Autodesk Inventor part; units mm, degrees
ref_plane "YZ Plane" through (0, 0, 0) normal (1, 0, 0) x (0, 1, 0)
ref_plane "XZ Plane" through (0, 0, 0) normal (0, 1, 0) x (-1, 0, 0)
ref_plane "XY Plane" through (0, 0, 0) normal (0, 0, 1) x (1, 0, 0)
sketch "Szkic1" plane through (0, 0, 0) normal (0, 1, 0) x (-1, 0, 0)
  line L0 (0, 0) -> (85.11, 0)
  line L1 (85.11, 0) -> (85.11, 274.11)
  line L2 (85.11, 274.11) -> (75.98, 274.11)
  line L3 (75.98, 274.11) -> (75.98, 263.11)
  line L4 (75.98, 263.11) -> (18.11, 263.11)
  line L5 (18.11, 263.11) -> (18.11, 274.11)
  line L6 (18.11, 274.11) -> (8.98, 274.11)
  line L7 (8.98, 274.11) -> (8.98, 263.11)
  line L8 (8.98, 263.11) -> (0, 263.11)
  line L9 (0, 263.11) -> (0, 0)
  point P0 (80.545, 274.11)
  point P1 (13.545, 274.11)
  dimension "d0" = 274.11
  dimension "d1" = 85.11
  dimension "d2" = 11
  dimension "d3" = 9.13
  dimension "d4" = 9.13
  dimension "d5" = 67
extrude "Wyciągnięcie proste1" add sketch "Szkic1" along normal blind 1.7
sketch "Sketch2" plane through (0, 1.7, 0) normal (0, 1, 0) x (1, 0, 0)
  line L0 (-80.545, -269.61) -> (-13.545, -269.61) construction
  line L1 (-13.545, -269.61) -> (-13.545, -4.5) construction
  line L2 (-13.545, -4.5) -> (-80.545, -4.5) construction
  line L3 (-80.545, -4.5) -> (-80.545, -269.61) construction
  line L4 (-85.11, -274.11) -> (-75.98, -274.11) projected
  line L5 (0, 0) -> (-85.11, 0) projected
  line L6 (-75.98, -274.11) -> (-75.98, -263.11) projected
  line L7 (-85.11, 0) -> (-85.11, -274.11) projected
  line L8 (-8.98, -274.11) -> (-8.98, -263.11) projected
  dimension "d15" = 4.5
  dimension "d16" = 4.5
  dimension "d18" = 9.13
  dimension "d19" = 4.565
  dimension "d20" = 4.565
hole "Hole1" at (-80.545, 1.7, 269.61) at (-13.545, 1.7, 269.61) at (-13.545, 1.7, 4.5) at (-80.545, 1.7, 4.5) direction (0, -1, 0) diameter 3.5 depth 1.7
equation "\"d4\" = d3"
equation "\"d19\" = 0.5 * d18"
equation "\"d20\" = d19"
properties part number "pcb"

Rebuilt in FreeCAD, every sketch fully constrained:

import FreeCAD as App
import Part
import Sketcher
Q = App.Units.Quantity


def add_polygon(sketch, points):
    """Adds a closed chain of lines whose ends are joined by coincident constraints."""
    first, n = sketch.GeometryCount, len(points)
    for a, b in zip(points, points[1:] + points[:1]):
        sketch.addGeometry(Part.LineSegment(App.Vector(*a, 0), App.Vector(*b, 0)), False)
    for i in range(n):
        sketch.addConstraint(Sketcher.Constraint("Coincident", first + i, 2, first + (i + 1) % n, 1))

doc = App.newDocument("Part")
body = doc.addObject("PartDesign::Body", "Body")

sketch1 = doc.addObject("Sketcher::SketchObject", "Sketch")
body.addObject(sketch1)
sketch1.AttachmentSupport = (doc.XZ_Plane, [""])
sketch1.MapMode = "FlatFace"
add_polygon(sketch1, [(0, 263), (0, 0), (-85, 0), (-85, 274), (-76, 274), (-76, 263), (-18, 263), (-18, 274), (-9, 274), (-9, 263)])
sketch1.addConstraint([
    Sketcher.Constraint("Vertical", 0),
    Sketcher.Constraint("Horizontal", 1),
    Sketcher.Constraint("Vertical", 2),
    Sketcher.Constraint("Horizontal", 3),
    Sketcher.Constraint("Vertical", 4),
    Sketcher.Constraint("Horizontal", 5),
    Sketcher.Constraint("Vertical", 6),
    Sketcher.Constraint("Horizontal", 7),
    Sketcher.Constraint("Vertical", 8),
    Sketcher.Constraint("Horizontal", 9),
    Sketcher.Constraint("Coincident", 0, 2, -1, 1),
    Sketcher.Constraint("Horizontal", 3, 2, 6, 2),
    Sketcher.Constraint("Horizontal", 5, 2, 8, 2),
    Sketcher.Constraint("Equal", 3, 7),
    Sketcher.Constraint("DistanceY", 4, 2, 4, 1, Q("11 mm")),
    Sketcher.Constraint("DistanceX", 2, 2, 5, 2, Q("67 mm")),
    Sketcher.Constraint("DistanceX", 1, 2, 1, 1, Q("85.11 mm")),
    Sketcher.Constraint("DistanceX", 3, 1, 3, 2, Q("9.13 mm")),
    Sketcher.Constraint("DistanceY", 2, 1, 2, 2, Q("274.11 mm")),
])
pad1 = doc.addObject("PartDesign::Pad", "Pad")
body.addObject(pad1)
pad1.Profile = sketch1
pad1.Length = 1.7
pad1.Reversed = True

sketch2 = doc.addObject("Sketcher::SketchObject", "Sketch001")
body.addObject(sketch2)
sketch2.AttachmentSupport = (doc.XZ_Plane, [""])
sketch2.MapMode = "FlatFace"
sketch2.AttachmentOffset = App.Placement(App.Vector(0, 0, -1.7), App.Rotation())
sketch2.addGeometry([
    Part.Circle(App.Vector(-80.5, 269.6, 0), App.Vector(0, 0, 1), 1.8),
    Part.Circle(App.Vector(-13.5, 269.6, 0), App.Vector(0, 0, 1), 1.8),
    Part.Circle(App.Vector(-13.5, 4.5, 0), App.Vector(0, 0, 1), 1.8),
    Part.Circle(App.Vector(-80.5, 4.5, 0), App.Vector(0, 0, 1), 1.8),
], False)
sketch2.addConstraint([
    Sketcher.Constraint("Equal", 0, 1),
    Sketcher.Constraint("Equal", 1, 2),
    Sketcher.Constraint("Equal", 2, 3),
    Sketcher.Constraint("Horizontal", 0, 3, 1, 3),
    Sketcher.Constraint("Horizontal", 2, 3, 3, 3),
    Sketcher.Constraint("Vertical", 1, 3, 2, 3),
    Sketcher.Constraint("Vertical", 0, 3, 3, 3),
    Sketcher.Constraint("Diameter", 0, Q("3.5 mm")),
    Sketcher.Constraint("DistanceX", 0, 3, 1, 3, Q("67 mm")),
    Sketcher.Constraint("DistanceY", -1, 1, 2, 3, Q("4.5 mm")),
    Sketcher.Constraint("DistanceY", -1, 1, 0, 3, Q("269.61 mm")),
    Sketcher.Constraint("DistanceX", 0, 3, -1, 1, Q("80.545 mm")),
])
doc.recompute()
hole = doc.addObject("PartDesign::Hole", "Hole")
body.addObject(hole)
hole.Profile = sketch2
hole.ThreadType = "None"
hole.Diameter = 3.5
hole.DepthType = "Dimension"
hole.Depth = 1.7
hole.DrillPoint = "Flat"
hole.Reversed = True

doc.recompute()
